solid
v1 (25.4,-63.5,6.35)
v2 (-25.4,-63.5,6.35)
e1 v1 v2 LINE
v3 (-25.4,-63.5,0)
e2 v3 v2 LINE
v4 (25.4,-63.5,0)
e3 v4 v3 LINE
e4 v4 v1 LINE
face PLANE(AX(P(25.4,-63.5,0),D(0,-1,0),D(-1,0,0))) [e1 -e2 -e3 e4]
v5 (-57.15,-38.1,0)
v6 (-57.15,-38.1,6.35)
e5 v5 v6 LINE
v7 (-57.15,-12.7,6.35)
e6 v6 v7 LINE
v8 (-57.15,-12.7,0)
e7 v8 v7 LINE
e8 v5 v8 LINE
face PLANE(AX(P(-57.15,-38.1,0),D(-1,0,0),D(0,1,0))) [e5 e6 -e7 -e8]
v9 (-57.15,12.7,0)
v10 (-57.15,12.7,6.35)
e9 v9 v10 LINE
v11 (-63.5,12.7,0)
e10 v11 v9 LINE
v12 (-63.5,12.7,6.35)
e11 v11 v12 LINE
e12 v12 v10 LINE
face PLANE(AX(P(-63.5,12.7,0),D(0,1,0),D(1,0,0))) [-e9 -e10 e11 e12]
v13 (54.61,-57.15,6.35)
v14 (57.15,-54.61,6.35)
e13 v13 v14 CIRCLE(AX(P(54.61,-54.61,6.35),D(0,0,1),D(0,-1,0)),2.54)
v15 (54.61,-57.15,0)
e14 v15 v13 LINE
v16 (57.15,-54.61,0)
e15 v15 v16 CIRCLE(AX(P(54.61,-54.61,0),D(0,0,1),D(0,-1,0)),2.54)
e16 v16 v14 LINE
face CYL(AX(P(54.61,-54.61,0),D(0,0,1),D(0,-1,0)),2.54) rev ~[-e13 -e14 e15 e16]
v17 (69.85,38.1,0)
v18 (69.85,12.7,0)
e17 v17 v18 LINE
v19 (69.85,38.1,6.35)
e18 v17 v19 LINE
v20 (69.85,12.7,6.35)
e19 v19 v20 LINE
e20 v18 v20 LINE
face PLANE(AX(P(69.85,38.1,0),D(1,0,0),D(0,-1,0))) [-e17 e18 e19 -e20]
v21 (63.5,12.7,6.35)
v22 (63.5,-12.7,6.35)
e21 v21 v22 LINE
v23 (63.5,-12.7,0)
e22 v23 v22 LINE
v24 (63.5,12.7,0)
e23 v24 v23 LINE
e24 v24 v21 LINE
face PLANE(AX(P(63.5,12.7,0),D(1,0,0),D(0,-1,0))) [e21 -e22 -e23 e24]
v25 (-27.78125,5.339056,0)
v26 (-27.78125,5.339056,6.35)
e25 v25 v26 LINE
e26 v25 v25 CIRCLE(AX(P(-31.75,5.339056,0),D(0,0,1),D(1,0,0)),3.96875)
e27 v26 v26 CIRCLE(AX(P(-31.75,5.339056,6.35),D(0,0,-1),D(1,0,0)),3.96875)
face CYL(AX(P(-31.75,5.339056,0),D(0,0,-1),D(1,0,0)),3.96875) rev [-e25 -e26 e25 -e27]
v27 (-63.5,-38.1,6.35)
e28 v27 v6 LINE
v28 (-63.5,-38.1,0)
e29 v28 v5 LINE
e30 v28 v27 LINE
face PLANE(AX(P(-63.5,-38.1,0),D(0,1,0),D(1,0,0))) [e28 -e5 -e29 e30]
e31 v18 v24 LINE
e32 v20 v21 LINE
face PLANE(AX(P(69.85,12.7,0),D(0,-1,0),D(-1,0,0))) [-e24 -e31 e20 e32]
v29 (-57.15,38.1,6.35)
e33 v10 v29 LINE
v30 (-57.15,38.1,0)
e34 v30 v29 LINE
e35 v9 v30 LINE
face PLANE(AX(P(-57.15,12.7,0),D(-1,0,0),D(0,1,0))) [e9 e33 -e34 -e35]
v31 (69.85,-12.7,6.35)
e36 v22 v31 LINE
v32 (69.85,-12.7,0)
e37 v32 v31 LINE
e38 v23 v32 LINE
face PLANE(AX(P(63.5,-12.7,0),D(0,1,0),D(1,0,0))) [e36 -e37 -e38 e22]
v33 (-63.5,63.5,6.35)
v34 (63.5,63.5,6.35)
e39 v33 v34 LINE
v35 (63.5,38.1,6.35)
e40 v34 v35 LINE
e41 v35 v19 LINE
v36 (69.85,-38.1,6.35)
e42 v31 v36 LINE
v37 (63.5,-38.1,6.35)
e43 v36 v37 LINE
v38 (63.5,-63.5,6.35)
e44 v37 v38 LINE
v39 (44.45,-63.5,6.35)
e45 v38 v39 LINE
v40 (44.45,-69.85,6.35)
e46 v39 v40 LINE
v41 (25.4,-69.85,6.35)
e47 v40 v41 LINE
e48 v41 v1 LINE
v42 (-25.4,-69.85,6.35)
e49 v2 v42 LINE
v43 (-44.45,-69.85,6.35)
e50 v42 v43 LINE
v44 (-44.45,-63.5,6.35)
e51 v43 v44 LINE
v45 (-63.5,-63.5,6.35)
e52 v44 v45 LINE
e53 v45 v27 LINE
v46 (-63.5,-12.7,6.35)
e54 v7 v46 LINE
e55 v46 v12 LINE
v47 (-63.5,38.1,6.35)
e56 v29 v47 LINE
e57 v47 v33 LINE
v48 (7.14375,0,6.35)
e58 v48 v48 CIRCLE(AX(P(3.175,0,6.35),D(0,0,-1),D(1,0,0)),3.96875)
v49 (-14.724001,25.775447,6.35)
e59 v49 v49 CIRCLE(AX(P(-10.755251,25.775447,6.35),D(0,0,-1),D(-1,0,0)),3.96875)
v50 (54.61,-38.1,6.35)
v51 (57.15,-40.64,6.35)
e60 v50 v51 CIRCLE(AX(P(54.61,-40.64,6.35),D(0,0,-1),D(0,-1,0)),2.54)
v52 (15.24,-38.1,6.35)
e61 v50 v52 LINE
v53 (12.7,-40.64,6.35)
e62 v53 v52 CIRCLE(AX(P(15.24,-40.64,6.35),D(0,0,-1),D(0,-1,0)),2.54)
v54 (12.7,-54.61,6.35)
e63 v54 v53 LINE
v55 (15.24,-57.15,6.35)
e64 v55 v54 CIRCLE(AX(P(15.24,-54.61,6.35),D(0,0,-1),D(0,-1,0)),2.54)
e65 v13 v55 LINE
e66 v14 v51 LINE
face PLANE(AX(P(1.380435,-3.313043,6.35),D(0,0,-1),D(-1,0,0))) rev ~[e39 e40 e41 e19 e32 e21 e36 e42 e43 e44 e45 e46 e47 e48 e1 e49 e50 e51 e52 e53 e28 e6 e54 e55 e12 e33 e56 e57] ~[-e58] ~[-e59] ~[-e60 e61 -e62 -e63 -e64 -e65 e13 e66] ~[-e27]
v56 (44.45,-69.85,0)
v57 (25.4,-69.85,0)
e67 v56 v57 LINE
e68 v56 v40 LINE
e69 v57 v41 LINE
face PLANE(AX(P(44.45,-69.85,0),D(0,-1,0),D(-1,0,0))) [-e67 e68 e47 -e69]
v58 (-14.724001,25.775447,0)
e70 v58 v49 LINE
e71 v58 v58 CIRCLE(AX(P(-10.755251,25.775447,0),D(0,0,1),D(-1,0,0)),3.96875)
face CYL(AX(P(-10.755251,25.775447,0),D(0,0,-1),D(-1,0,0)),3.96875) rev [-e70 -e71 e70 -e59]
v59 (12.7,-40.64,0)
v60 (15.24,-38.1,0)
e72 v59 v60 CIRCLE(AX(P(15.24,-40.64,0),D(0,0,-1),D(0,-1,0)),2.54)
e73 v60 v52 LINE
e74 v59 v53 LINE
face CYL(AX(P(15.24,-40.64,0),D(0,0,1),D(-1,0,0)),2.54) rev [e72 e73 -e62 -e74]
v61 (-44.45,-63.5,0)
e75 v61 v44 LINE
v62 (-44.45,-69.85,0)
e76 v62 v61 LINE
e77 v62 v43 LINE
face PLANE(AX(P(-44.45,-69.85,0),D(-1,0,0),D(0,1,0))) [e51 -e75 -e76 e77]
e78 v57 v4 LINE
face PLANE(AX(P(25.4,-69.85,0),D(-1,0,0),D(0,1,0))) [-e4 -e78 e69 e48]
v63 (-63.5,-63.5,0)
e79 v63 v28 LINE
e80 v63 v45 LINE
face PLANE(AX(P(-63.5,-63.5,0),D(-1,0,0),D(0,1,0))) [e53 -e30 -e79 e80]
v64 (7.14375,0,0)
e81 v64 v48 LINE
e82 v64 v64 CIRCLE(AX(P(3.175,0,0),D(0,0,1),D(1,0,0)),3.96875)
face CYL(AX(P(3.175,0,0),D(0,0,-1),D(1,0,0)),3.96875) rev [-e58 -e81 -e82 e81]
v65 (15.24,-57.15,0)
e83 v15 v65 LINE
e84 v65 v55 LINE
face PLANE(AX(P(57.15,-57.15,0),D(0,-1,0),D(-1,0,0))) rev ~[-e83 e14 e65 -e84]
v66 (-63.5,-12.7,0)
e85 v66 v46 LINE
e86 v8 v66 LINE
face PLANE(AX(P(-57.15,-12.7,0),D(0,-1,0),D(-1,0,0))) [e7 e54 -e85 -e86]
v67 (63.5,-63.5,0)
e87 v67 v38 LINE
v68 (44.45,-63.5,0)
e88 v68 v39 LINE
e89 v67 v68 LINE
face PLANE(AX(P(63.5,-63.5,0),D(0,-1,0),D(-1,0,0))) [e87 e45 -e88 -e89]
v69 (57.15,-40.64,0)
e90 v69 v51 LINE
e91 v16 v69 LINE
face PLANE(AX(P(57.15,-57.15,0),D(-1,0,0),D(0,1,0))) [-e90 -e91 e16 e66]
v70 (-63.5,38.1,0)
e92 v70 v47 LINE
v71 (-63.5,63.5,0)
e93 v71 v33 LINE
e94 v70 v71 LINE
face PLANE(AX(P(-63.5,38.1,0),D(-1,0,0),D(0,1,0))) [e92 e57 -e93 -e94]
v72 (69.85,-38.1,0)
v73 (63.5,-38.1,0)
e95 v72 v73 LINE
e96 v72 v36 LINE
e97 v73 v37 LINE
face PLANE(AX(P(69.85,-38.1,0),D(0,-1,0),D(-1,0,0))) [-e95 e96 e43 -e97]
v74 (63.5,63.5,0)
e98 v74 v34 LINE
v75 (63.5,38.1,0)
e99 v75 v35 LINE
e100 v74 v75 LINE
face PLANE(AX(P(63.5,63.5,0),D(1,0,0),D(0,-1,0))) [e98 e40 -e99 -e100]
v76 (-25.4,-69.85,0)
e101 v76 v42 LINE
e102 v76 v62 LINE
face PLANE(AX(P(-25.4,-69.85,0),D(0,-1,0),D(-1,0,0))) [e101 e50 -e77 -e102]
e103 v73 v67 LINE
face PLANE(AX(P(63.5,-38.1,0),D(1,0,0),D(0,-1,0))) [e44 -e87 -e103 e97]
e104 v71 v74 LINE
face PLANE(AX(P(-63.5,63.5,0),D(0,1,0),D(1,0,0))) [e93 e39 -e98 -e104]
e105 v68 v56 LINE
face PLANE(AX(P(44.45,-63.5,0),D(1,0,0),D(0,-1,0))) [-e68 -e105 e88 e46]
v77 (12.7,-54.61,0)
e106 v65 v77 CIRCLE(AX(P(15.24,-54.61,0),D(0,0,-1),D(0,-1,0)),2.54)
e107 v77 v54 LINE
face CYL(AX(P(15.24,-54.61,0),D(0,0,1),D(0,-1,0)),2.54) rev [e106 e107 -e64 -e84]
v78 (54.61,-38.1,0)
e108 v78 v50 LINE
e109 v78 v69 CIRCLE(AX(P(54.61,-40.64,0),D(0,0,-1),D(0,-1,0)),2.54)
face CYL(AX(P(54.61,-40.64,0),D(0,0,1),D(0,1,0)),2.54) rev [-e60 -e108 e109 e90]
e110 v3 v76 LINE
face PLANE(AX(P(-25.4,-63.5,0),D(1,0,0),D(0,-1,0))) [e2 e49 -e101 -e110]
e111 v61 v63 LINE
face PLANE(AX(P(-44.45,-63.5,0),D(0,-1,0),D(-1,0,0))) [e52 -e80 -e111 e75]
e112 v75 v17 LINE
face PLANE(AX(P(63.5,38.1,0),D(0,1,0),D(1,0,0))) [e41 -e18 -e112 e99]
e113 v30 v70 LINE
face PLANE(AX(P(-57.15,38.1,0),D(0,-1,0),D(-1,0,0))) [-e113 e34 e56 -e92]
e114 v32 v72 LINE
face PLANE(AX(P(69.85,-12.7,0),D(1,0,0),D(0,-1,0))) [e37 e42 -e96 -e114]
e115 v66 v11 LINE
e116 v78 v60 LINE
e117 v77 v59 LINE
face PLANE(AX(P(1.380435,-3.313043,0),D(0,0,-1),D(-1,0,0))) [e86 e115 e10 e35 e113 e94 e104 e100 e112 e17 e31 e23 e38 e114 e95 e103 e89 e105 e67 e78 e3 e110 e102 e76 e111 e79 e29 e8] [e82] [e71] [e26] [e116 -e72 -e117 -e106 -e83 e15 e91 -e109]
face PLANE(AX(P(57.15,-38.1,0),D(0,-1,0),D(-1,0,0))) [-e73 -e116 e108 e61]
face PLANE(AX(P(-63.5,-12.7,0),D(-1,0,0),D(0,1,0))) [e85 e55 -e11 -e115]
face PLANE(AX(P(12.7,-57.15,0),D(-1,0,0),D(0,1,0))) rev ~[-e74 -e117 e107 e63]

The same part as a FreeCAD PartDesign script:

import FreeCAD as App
import Part
import Sketcher
Q = App.Units.Quantity


def edges_at(feature, points):
    """Names of the edges that pass closest to the given points."""
    edges = feature.Shape.Edges
    near = lambda p: min(range(len(edges)), key=lambda i: edges[i].distToShape(Part.Vertex(*p))[0])
    return sorted({f"Edge{near(p) + 1}" for p in points})


def add_polygon(sketch, points):
    """Adds a closed chain of lines whose ends are joined by coincident constraints."""
    first, n = sketch.GeometryCount, len(points)
    for a, b in zip(points, points[1:] + points[:1]):
        sketch.addGeometry(Part.LineSegment(App.Vector(*a, 0), App.Vector(*b, 0)), False)
    for i in range(n):
        sketch.addConstraint(Sketcher.Constraint("Coincident", first + i, 2, first + (i + 1) % n, 1))

doc = App.newDocument("Part")
body = doc.addObject("PartDesign::Body", "Body")

# Sketch on XY plane
sketch1 = doc.addObject("Sketcher::SketchObject", "Sketch")
body.addObject(sketch1)
sketch1.AttachmentSupport = (doc.XY_Plane, [""])
sketch1.MapMode = "FlatFace"
add_polygon(sketch1, [(-63.5, 63.5), (-63.5, 38.1), (-57.15, 38.1), (-57.15, 12.7), (-63.5, 12.7), (-63.5, -12.7), (-57.15, -12.7), (-57.15, -38.1), (-63.5, -38.1), (-63.5, -63.5), (-44.45, -63.5), (-44.45, -69.85), (-25.4, -69.85), (-25.4, -63.5), (25.4, -63.5), (25.4, -69.85), (44.45, -69.85), (44.45, -63.5), (63.5, -63.5), (63.5, -38.1), (69.85, -38.1), (69.85, -12.7), (63.5, -12.7), (63.5, 12.7), (69.85, 12.7), (69.85, 38.1), (63.5, 38.1), (63.5, 63.5)])  # lines 0-27
sketch1.addConstraint(Sketcher.Constraint("Vertical", 0))
sketch1.addConstraint(Sketcher.Constraint("Horizontal", 1))
sketch1.addConstraint(Sketcher.Constraint("Vertical", 2))
sketch1.addConstraint(Sketcher.Constraint("Horizontal", 3))
sketch1.addConstraint(Sketcher.Constraint("Vertical", 4))
sketch1.addConstraint(Sketcher.Constraint("Horizontal", 5))
sketch1.addConstraint(Sketcher.Constraint("Vertical", 6))
sketch1.addConstraint(Sketcher.Constraint("Horizontal", 7))
sketch1.addConstraint(Sketcher.Constraint("Vertical", 8))
sketch1.addConstraint(Sketcher.Constraint("Horizontal", 9))
sketch1.addConstraint(Sketcher.Constraint("Vertical", 10))
sketch1.addConstraint(Sketcher.Constraint("Horizontal", 11))
sketch1.addConstraint(Sketcher.Constraint("Vertical", 12))
sketch1.addConstraint(Sketcher.Constraint("Horizontal", 13))
sketch1.addConstraint(Sketcher.Constraint("Vertical", 14))
sketch1.addConstraint(Sketcher.Constraint("Horizontal", 15))
sketch1.addConstraint(Sketcher.Constraint("Vertical", 16))
sketch1.addConstraint(Sketcher.Constraint("Horizontal", 17))
sketch1.addConstraint(Sketcher.Constraint("Vertical", 18))
sketch1.addConstraint(Sketcher.Constraint("Horizontal", 19))
sketch1.addConstraint(Sketcher.Constraint("Vertical", 20))
sketch1.addConstraint(Sketcher.Constraint("Horizontal", 21))
sketch1.addConstraint(Sketcher.Constraint("Vertical", 22))
sketch1.addConstraint(Sketcher.Constraint("Horizontal", 23))
sketch1.addConstraint(Sketcher.Constraint("Vertical", 24))
sketch1.addConstraint(Sketcher.Constraint("Horizontal", 25))
sketch1.addConstraint(Sketcher.Constraint("Vertical", 26))
sketch1.addConstraint(Sketcher.Constraint("Horizontal", 27))
sketch1.addConstraint(Sketcher.Constraint("Symmetric", 0, 2, 18, 2, -1, 1))
sketch1.addConstraint(Sketcher.Constraint("Symmetric", 3, 2, 21, 2, -1, 1))
sketch1.addConstraint(Sketcher.Constraint("Symmetric", 7, 2, 25, 2, -1, 1))
sketch1.addConstraint(Sketcher.Constraint("Symmetric", 11, 2, 14, 2, -2))
sketch1.addConstraint(Sketcher.Constraint("Symmetric", 9, 2, 16, 2, -2))
sketch1.addConstraint(Sketcher.Constraint("Symmetric", 7, 2, 18, 2, -2))
sketch1.addConstraint(Sketcher.Constraint("Symmetric", 2, 2, 5, 2, -1))
sketch1.addConstraint(Sketcher.Constraint("Symmetric", 20, 2, 23, 2, -1))
sketch1.addConstraint(Sketcher.Constraint("Horizontal", 9, 2, 12, 2))
sketch1.addConstraint(Sketcher.Constraint("Vertical", 0, 2, 3, 2))
sketch1.addConstraint(Sketcher.Constraint("Equal", 9, 11))
sketch1.addConstraint(Sketcher.Constraint("Equal", 7, 19))
sketch1.addConstraint(Sketcher.Constraint("Equal", 0, 2))
sketch1.addConstraint(Sketcher.Constraint("Equal", 2, 4))
sketch1.addConstraint(Sketcher.Constraint("Equal", 6, 8))
sketch1.addConstraint(Sketcher.Constraint("Equal", 25, 10))
sketch1.addConstraint(Sketcher.Constraint("DistanceX", 13, 1, 13, 2, Q("2 in")))
sketch1.addConstraint(Sketcher.Constraint("DistanceX", 27, 2, 27, 1, Q("5 in")))
sketch1.addConstraint(Sketcher.Constraint("DistanceY", 0, 2, 0, 1, Q("1 in")))
sketch1.addConstraint(Sketcher.Constraint("DistanceX", 16, 2, 19, 2, Q("1 in")))
pad1 = doc.addObject("PartDesign::Pad", "Pad")
body.addObject(pad1)
pad1.Profile = sketch1
pad1.Length = Q("0.25 in")

# Sketch on XY plane
sketch2 = doc.addObject("Sketcher::SketchObject", "Sketch001")
body.addObject(sketch2)
sketch2.AttachmentSupport = (doc.XY_Plane, [""])
sketch2.MapMode = "FlatFace"
sketch2.addGeometry(Part.Circle(App.Vector(-10.755251, 25.775447, 0), App.Vector(0, 0, 1), 3.96875), False)
sketch2.addGeometry(Part.Circle(App.Vector(3.175, 0, 0), App.Vector(0, 0, 1), 3.96875), False)
sketch2.addGeometry(Part.Circle(App.Vector(-31.75, 5.339056, 0), App.Vector(0, 0, 1), 3.96875), False)
sketch2.addConstraint(Sketcher.Constraint("Equal", 0, 1))
sketch2.addConstraint(Sketcher.Constraint("Equal", 1, 2))
sketch2.addConstraint(Sketcher.Constraint("PointOnObject", 1, 3, -1))
sketch2.addConstraint(Sketcher.Constraint("Diameter", 0, Q("0.3125 in")))
sketch2.addConstraint(Sketcher.Constraint("DistanceX", 2, 3, -1, 1, Q("1.25 in")))
sketch2.addConstraint(Sketcher.Constraint("DistanceX", -1, 1, 1, 3, Q("0.125 in")))
sketch2.addConstraint(Sketcher.Constraint("DistanceX", 0, 3, -1, 1, 10.755251))
sketch2.addConstraint(Sketcher.Constraint("DistanceY", 2, 3, 0, 3, 20.43639))
sketch2.addConstraint(Sketcher.Constraint("DistanceY", -1, 1, 0, 3, 25.775447))
pocket1 = doc.addObject("PartDesign::Pocket", "Pocket")
body.addObject(pocket1)
pocket1.Profile = sketch2
pocket1.Type = "ThroughAll"
pocket1.Reversed = True

# Sketch on XY plane
sketch3 = doc.addObject("Sketcher::SketchObject", "Sketch002")
body.addObject(sketch3)
sketch3.AttachmentSupport = (doc.XY_Plane, [""])
sketch3.MapMode = "FlatFace"
add_polygon(sketch3, [(57.15, -38.1), (57.15, -57.15), (12.7, -57.15), (12.7, -38.1)])  # lines 0-3
sketch3.addConstraint(Sketcher.Constraint("Vertical", 0))
sketch3.addConstraint(Sketcher.Constraint("Horizontal", 1))
sketch3.addConstraint(Sketcher.Constraint("Vertical", 2))
sketch3.addConstraint(Sketcher.Constraint("Horizontal", 3))
sketch3.addConstraint(Sketcher.Constraint("DistanceX", 1, 2, 1, 1, Q("1.75 in")))
sketch3.addConstraint(Sketcher.Constraint("DistanceY", 0, 2, 0, 1, Q("0.75 in")))
sketch3.addConstraint(Sketcher.Constraint("DistanceX", -1, 1, 1, 2, Q("0.5 in")))
sketch3.addConstraint(Sketcher.Constraint("DistanceY", 2, 2, -1, 1, Q("1.5 in")))
pocket2 = doc.addObject("PartDesign::Pocket", "Pocket001")
body.addObject(pocket2)
pocket2.Profile = sketch3
pocket2.Type = "ThroughAll"
pocket2.Reversed = True
doc.recompute()

fillet = doc.addObject("PartDesign::Fillet", "Fillet")
body.addObject(fillet)
fillet.Base = (pocket2, edges_at(pocket2, [
    (57.15, -57.15, 3.175),
    (57.15, -38.1, 3.175),
    (12.7, -38.1, 3.175),
    (12.7, -57.15, 3.175),
]))
fillet.Radius = Q("0.1 in")

doc.recompute()
